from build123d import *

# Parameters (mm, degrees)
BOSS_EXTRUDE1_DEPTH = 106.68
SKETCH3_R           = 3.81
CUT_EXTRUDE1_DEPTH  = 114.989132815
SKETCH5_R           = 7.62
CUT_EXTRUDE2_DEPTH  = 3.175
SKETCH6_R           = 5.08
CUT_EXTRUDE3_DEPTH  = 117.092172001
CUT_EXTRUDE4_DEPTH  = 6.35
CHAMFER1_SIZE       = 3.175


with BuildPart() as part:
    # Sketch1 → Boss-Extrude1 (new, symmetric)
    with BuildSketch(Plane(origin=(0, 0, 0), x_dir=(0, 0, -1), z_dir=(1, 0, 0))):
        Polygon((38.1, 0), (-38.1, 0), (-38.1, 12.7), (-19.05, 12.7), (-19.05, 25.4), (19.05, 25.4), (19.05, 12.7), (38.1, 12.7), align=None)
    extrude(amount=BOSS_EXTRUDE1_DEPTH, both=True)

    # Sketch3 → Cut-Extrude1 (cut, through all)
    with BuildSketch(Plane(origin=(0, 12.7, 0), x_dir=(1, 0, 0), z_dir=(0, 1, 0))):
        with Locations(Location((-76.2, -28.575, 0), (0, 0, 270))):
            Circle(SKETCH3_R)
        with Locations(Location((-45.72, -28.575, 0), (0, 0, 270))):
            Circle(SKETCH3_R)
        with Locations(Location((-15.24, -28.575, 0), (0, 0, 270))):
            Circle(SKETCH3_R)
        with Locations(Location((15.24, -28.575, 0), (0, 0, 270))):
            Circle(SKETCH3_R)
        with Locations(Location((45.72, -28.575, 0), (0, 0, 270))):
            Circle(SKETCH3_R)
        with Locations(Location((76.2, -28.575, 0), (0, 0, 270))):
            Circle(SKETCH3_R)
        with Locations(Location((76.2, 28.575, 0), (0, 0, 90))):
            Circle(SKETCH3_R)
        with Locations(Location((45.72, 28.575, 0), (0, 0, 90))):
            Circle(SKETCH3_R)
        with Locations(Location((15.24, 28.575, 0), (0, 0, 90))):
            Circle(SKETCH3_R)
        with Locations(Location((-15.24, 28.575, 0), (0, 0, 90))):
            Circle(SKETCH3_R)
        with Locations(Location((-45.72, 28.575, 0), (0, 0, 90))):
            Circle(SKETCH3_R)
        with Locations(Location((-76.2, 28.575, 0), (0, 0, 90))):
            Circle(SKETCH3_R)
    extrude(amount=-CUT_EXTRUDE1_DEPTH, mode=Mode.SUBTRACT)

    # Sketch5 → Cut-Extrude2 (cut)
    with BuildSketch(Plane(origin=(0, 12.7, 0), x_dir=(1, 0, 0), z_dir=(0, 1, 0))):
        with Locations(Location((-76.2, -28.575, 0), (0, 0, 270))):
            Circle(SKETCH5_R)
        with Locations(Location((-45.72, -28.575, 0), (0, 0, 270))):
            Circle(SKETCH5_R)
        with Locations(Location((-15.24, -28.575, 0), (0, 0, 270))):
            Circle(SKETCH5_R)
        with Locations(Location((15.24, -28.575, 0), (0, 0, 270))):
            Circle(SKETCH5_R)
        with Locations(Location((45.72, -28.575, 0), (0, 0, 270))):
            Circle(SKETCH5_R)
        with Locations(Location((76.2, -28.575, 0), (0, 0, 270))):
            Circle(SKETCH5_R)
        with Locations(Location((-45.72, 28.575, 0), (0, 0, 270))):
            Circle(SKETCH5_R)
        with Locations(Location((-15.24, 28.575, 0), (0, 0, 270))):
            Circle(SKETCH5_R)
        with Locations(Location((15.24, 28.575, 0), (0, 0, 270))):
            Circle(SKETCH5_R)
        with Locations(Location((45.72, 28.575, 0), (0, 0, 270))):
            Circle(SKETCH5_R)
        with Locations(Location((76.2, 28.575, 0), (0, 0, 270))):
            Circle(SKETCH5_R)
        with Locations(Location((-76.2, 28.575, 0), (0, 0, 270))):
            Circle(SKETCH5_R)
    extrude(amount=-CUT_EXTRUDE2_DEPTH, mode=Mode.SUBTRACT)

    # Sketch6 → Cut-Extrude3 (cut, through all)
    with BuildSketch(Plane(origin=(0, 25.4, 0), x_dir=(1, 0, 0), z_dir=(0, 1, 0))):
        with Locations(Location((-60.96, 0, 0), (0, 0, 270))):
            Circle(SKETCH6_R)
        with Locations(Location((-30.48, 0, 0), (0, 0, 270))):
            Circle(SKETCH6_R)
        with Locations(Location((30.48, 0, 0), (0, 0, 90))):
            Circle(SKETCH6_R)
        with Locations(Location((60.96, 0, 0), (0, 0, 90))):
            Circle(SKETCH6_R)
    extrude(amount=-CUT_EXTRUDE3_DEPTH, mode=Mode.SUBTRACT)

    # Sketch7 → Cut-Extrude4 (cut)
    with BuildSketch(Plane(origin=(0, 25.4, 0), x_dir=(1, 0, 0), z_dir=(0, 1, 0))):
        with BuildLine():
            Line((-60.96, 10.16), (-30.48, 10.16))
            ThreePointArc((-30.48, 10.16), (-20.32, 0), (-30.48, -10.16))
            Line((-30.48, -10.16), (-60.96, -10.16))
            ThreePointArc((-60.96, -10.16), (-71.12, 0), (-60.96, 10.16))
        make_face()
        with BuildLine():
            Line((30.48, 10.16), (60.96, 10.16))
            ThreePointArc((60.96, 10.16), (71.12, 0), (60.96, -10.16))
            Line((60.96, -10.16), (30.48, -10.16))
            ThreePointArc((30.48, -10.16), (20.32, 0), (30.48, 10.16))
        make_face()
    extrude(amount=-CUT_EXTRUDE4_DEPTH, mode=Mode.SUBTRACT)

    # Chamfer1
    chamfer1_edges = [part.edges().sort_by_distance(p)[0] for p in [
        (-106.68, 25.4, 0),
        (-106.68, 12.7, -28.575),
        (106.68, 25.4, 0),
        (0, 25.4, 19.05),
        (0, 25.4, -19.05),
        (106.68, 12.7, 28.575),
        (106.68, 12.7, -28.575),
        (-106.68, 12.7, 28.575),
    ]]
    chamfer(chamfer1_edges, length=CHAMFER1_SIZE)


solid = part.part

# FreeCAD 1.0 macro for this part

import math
import FreeCAD as App
import Part
import Sketcher
Q = App.Units.Quantity


def edges_at(feature, points):
    """Names of the edges that pass closest to the given points."""
    edges = feature.Shape.Edges
    near = lambda p: min(range(len(edges)), key=lambda i: edges[i].distToShape(Part.Vertex(*p))[0])
    return sorted({f"Edge{near(p) + 1}" for p in points})


def add_polygon(sketch, points):
    """Adds a closed chain of lines whose ends are joined by coincident constraints."""
    first, n = sketch.GeometryCount, len(points)
    for a, b in zip(points, points[1:] + points[:1]):
        sketch.addGeometry(Part.LineSegment(App.Vector(*a, 0), App.Vector(*b, 0)), False)
    for i in range(n):
        sketch.addConstraint(Sketcher.Constraint("Coincident", first + i, 2, first + (i + 1) % n, 1))

doc = App.newDocument("Part")
params = doc.addObject("Spreadsheet::Sheet", "Params")
for row, (alias, value) in enumerate([
    ("sketch1_height", "3 in"),
    ("sketch1_width", "0.5 in"),
    ("sketch1_height2", "1.5 in"),
    ("pad1_length", "8.4 in"),
    ("sketch2_diameter", "0.3 in"),
    ("sketch3_diameter", "0.6 in"),
    ("pocket2_length", "0.125 in"),
    ("sketch4_diameter", "0.4 in"),
    ("sketch5_radius", "0.4 in"),
    ("sketch5_width", "1.2 in"),
    ("pocket4_length", "0.25 in"),
    ("chamfer_size", "0.125 in"),
], start=1):
    params.set(f"A{row}", alias)
    params.set(f"B{row}", "=" + value)
    params.setAlias(f"B{row}", alias)

body = doc.addObject("PartDesign::Body", "Body")

sketch1 = doc.addObject("Sketcher::SketchObject", "Sketch")
body.addObject(sketch1)
sketch1.AttachmentSupport = (doc.YZ_Plane, [""])
sketch1.MapMode = "FlatFace"
add_polygon(sketch1, [(0, 38.1), (0, -38.1), (12.7, -38.1), (12.7, -19.05), (25.4, -19.05), (25.4, 19.05), (12.7, 19.05), (12.7, 38.1)])
sketch1.addConstraint([
    Sketcher.Constraint("Vertical", 0),
    Sketcher.Constraint("Horizontal", 1),
    Sketcher.Constraint("Vertical", 2),
    Sketcher.Constraint("Horizontal", 3),
    Sketcher.Constraint("Vertical", 4),
    Sketcher.Constraint("Horizontal", 5),
    Sketcher.Constraint("Vertical", 6),
    Sketcher.Constraint("Horizontal", 7),
    Sketcher.Constraint("Symmetric", 0, 2, 7, 2, -1, 1),
    Sketcher.Constraint("Symmetric", 2, 2, 5, 2, -1),
    Sketcher.Constraint("Equal", 1, 3),
    Sketcher.Constraint("DistanceY", 0, 2, 0, 1, Q("3 in")),
    Sketcher.Constraint("DistanceX", 1, 1, 1, 2, Q("0.5 in")),
    Sketcher.Constraint("DistanceY", 4, 1, 4, 2, Q("1.5 in")),
])
sketch1.setExpression("Constraints[19]", "Params.sketch1_height")
sketch1.setExpression("Constraints[20]", "Params.sketch1_width")
sketch1.setExpression("Constraints[21]", "Params.sketch1_height2")
pad1 = doc.addObject("PartDesign::Pad", "Pad")
body.addObject(pad1)
pad1.Profile = sketch1
pad1.setExpression("Length", "Params.pad1_length")
pad1.Midplane = True

sketch2 = doc.addObject("Sketcher::SketchObject", "Sketch001")
body.addObject(sketch2)
sketch2.AttachmentSupport = (doc.XZ_Plane, [""])
sketch2.MapMode = "FlatFace"
sketch2.AttachmentOffset = App.Placement(App.Vector(0, 0, -0.5 * 25.4), App.Rotation())
sketch2.addGeometry([
    Part.Circle(App.Vector(-76.2, 28.575, 0), App.Vector(0, 0, 1), 3.81),
    Part.Circle(App.Vector(-45.72, 28.575, 0), App.Vector(0, 0, 1), 3.81),
    Part.Circle(App.Vector(-15.24, 28.575, 0), App.Vector(0, 0, 1), 3.81),
    Part.Circle(App.Vector(15.24, 28.575, 0), App.Vector(0, 0, 1), 3.81),
    Part.Circle(App.Vector(45.72, 28.575, 0), App.Vector(0, 0, 1), 3.81),
    Part.Circle(App.Vector(76.2, 28.575, 0), App.Vector(0, 0, 1), 3.81),
    Part.Circle(App.Vector(76.2, -28.575, 0), App.Vector(0, 0, 1), 3.81),
    Part.Circle(App.Vector(45.72, -28.575, 0), App.Vector(0, 0, 1), 3.81),
    Part.Circle(App.Vector(15.24, -28.575, 0), App.Vector(0, 0, 1), 3.81),
    Part.Circle(App.Vector(-15.24, -28.575, 0), App.Vector(0, 0, 1), 3.81),
    Part.Circle(App.Vector(-45.72, -28.575, 0), App.Vector(0, 0, 1), 3.81),
    Part.Circle(App.Vector(-76.2, -28.575, 0), App.Vector(0, 0, 1), 3.81),
], False)
sketch2.addConstraint([
    Sketcher.Constraint("Equal", 0, 1),
    Sketcher.Constraint("Equal", 1, 2),
    Sketcher.Constraint("Equal", 2, 3),
    Sketcher.Constraint("Equal", 3, 4),
    Sketcher.Constraint("Equal", 4, 5),
    Sketcher.Constraint("Equal", 5, 6),
    Sketcher.Constraint("Equal", 6, 7),
    Sketcher.Constraint("Equal", 7, 8),
    Sketcher.Constraint("Equal", 8, 9),
    Sketcher.Constraint("Equal", 9, 10),
    Sketcher.Constraint("Equal", 10, 11),
    Sketcher.Constraint("Symmetric", 0, 3, 6, 3, -1, 1),
    Sketcher.Constraint("Symmetric", 1, 3, 7, 3, -1, 1),
    Sketcher.Constraint("Symmetric", 2, 3, 8, 3, -1, 1),
    Sketcher.Constraint("Symmetric", 3, 3, 9, 3, -1, 1),
    Sketcher.Constraint("Symmetric", 4, 3, 10, 3, -1, 1),
    Sketcher.Constraint("Symmetric", 5, 3, 11, 3, -1, 1),
    Sketcher.Constraint("Symmetric", 2, 3, 3, 3, -2),
    Sketcher.Constraint("Symmetric", 1, 3, 4, 3, -2),
    Sketcher.Constraint("Symmetric", 0, 3, 5, 3, -2),
    Sketcher.Constraint("Horizontal", 0, 3, 1, 3),
    Sketcher.Constraint("Horizontal", 1, 3, 2, 3),
    Sketcher.Constraint("Diameter", 0, Q("0.3 in")),
    Sketcher.Constraint("DistanceX", 0, 3, -1, 1, Q("3 in")),
    Sketcher.Constraint("DistanceX", 1, 3, -1, 1, Q("1.8 in")),
    Sketcher.Constraint("DistanceX", 2, 3, -1, 1, Q("0.6 in")),
    Sketcher.Constraint("DistanceY", 6, 3, 5, 3, Q("2.25 in")),
])
sketch2.setExpression("Constraints[22]", "Params.sketch2_diameter")
pocket1 = doc.addObject("PartDesign::Pocket", "Pocket")
body.addObject(pocket1)
pocket1.Profile = sketch2
pocket1.Type = "ThroughAll"
pocket1.Reversed = True

sketch3 = doc.addObject("Sketcher::SketchObject", "Sketch002")
body.addObject(sketch3)
sketch3.AttachmentSupport = (doc.XZ_Plane, [""])
sketch3.MapMode = "FlatFace"
sketch3.AttachmentOffset = App.Placement(App.Vector(0, 0, -0.5 * 25.4), App.Rotation())
sketch3.addGeometry([
    Part.Circle(App.Vector(-76.2, 28.575, 0), App.Vector(0, 0, 1), 7.62),
    Part.Circle(App.Vector(-45.72, 28.575, 0), App.Vector(0, 0, 1), 7.62),
    Part.Circle(App.Vector(-15.24, 28.575, 0), App.Vector(0, 0, 1), 7.62),
    Part.Circle(App.Vector(15.24, 28.575, 0), App.Vector(0, 0, 1), 7.62),
    Part.Circle(App.Vector(45.72, 28.575, 0), App.Vector(0, 0, 1), 7.62),
    Part.Circle(App.Vector(76.2, 28.575, 0), App.Vector(0, 0, 1), 7.62),
    Part.Circle(App.Vector(-45.72, -28.575, 0), App.Vector(0, 0, 1), 7.62),
    Part.Circle(App.Vector(-15.24, -28.575, 0), App.Vector(0, 0, 1), 7.62),
    Part.Circle(App.Vector(15.24, -28.575, 0), App.Vector(0, 0, 1), 7.62),
    Part.Circle(App.Vector(45.72, -28.575, 0), App.Vector(0, 0, 1), 7.62),
    Part.Circle(App.Vector(76.2, -28.575, 0), App.Vector(0, 0, 1), 7.62),
    Part.Circle(App.Vector(-76.2, -28.575, 0), App.Vector(0, 0, 1), 7.62),
], False)
sketch3.addConstraint([
    Sketcher.Constraint("Equal", 0, 1),
    Sketcher.Constraint("Equal", 1, 2),
    Sketcher.Constraint("Equal", 2, 3),
    Sketcher.Constraint("Equal", 3, 4),
    Sketcher.Constraint("Equal", 4, 5),
    Sketcher.Constraint("Equal", 5, 6),
    Sketcher.Constraint("Equal", 6, 7),
    Sketcher.Constraint("Equal", 7, 8),
    Sketcher.Constraint("Equal", 8, 9),
    Sketcher.Constraint("Equal", 9, 10),
    Sketcher.Constraint("Equal", 10, 11),
    Sketcher.Constraint("Symmetric", 4, 3, 6, 3, -1, 1),
    Sketcher.Constraint("Symmetric", 3, 3, 7, 3, -1, 1),
    Sketcher.Constraint("Symmetric", 2, 3, 8, 3, -1, 1),
    Sketcher.Constraint("Symmetric", 1, 3, 9, 3, -1, 1),
    Sketcher.Constraint("Symmetric", 0, 3, 10, 3, -1, 1),
    Sketcher.Constraint("Symmetric", 5, 3, 11, 3, -1, 1),
    Sketcher.Constraint("Symmetric", 2, 3, 3, 3, -2),
    Sketcher.Constraint("Symmetric", 1, 3, 4, 3, -2),
    Sketcher.Constraint("Symmetric", 0, 3, 5, 3, -2),
    Sketcher.Constraint("Horizontal", 0, 3, 1, 3),
    Sketcher.Constraint("Horizontal", 1, 3, 2, 3),
    Sketcher.Constraint("Diameter", 0, Q("0.6 in")),
    Sketcher.Constraint("DistanceX", 0, 3, -1, 1, Q("3 in")),
    Sketcher.Constraint("DistanceX", 1, 3, -1, 1, Q("1.8 in")),
    Sketcher.Constraint("DistanceX", 2, 3, -1, 1, Q("0.6 in")),
    Sketcher.Constraint("DistanceY", 6, 3, 1, 3, Q("2.25 in")),
])
sketch3.setExpression("Constraints[22]", "Params.sketch3_diameter")
pocket2 = doc.addObject("PartDesign::Pocket", "Pocket001")
body.addObject(pocket2)
pocket2.Profile = sketch3
pocket2.setExpression("Length", "Params.pocket2_length")
pocket2.Reversed = True

sketch4 = doc.addObject("Sketcher::SketchObject", "Sketch003")
body.addObject(sketch4)
sketch4.AttachmentSupport = (doc.XZ_Plane, [""])
sketch4.MapMode = "FlatFace"
sketch4.AttachmentOffset = App.Placement(App.Vector(0, 0, -1 * 25.4), App.Rotation())
sketch4.addGeometry([
    Part.Circle(App.Vector(-60.96, 0, 0), App.Vector(0, 0, 1), 5.08),
    Part.Circle(App.Vector(-30.48, 0, 0), App.Vector(0, 0, 1), 5.08),
    Part.Circle(App.Vector(30.48, 0, 0), App.Vector(0, 0, 1), 5.08),
    Part.Circle(App.Vector(60.96, 0, 0), App.Vector(0, 0, 1), 5.08),
], False)
sketch4.addConstraint([
    Sketcher.Constraint("Equal", 0, 1),
    Sketcher.Constraint("Equal", 1, 2),
    Sketcher.Constraint("Equal", 2, 3),
    Sketcher.Constraint("Symmetric", 1, 3, 2, 3, -1, 1),
    Sketcher.Constraint("Symmetric", 0, 3, 3, 3, -1, 1),
    Sketcher.Constraint("PointOnObject", 0, 3, -1),
    Sketcher.Constraint("PointOnObject", 1, 3, -1),
    Sketcher.Constraint("Diameter", 0, Q("0.4 in")),
    Sketcher.Constraint("DistanceX", 0, 3, -1, 1, Q("2.4 in")),
    Sketcher.Constraint("DistanceX", 1, 3, -1, 1, Q("1.2 in")),
])
sketch4.setExpression("Constraints[7]", "Params.sketch4_diameter")
pocket3 = doc.addObject("PartDesign::Pocket", "Pocket002")
body.addObject(pocket3)
pocket3.Profile = sketch4
pocket3.Type = "ThroughAll"
pocket3.Reversed = True

sketch5 = doc.addObject("Sketcher::SketchObject", "Sketch004")
body.addObject(sketch5)
sketch5.AttachmentSupport = (doc.XZ_Plane, [""])
sketch5.MapMode = "FlatFace"
sketch5.AttachmentOffset = App.Placement(App.Vector(0, 0, -1 * 25.4), App.Rotation())
sketch5.addGeometry([
    Part.LineSegment(App.Vector(-30.48, -10.16, 0), App.Vector(-60.96, -10.16, 0)),
    Part.ArcOfCircle(Part.Circle(App.Vector(-60.96, 0, 0), App.Vector(0, 0, 1), 10.16), math.radians(90), math.radians(270)),
    Part.LineSegment(App.Vector(-60.96, 10.16, 0), App.Vector(-30.48, 10.16, 0)),
    Part.ArcOfCircle(Part.Circle(App.Vector(-30.48, 0, 0), App.Vector(0, 0, 1), 10.16), math.radians(-90), math.radians(90)),
    Part.LineSegment(App.Vector(60.96, -10.16, 0), App.Vector(30.48, -10.16, 0)),
    Part.ArcOfCircle(Part.Circle(App.Vector(30.48, 0, 0), App.Vector(0, 0, 1), 10.16), math.radians(90), math.radians(270)),
    Part.LineSegment(App.Vector(30.48, 10.16, 0), App.Vector(60.96, 10.16, 0)),
    Part.ArcOfCircle(Part.Circle(App.Vector(60.96, 0, 0), App.Vector(0, 0, 1), 10.16), math.radians(-90), math.radians(90)),
], False)
sketch5.addConstraint([
    Sketcher.Constraint("Tangent", 0, 2, 1, 2),
    Sketcher.Constraint("Tangent", 1, 1, 2, 1),
    Sketcher.Constraint("Tangent", 2, 2, 3, 2),
    Sketcher.Constraint("Tangent", 3, 1, 0, 1),
    Sketcher.Constraint("Tangent", 4, 2, 5, 2),
    Sketcher.Constraint("Tangent", 5, 1, 6, 1),
    Sketcher.Constraint("Tangent", 6, 2, 7, 2),
    Sketcher.Constraint("Tangent", 7, 1, 4, 1),
    Sketcher.Constraint("Horizontal", 0),
    Sketcher.Constraint("Horizontal", 2),
    Sketcher.Constraint("Horizontal", 4),
    Sketcher.Constraint("Horizontal", 6),
    Sketcher.Constraint("Equal", 3, 5),
    Sketcher.Constraint("Symmetric", 3, 3, 5, 3, -1, 1),
    Sketcher.Constraint("Symmetric", 1, 3, 7, 3, -2),
    Sketcher.Constraint("Radius", 1, Q("0.4 in")),
    Sketcher.Constraint("DistanceX", 0, 2, 0, 1, Q("1.2 in")),
    Sketcher.Constraint("DistanceX", 1, 3, -1, 1, Q("2.4 in")),
])
sketch5.setExpression("Constraints[15]", "Params.sketch5_radius")
sketch5.setExpression("Constraints[16]", "Params.sketch5_width")
pocket4 = doc.addObject("PartDesign::Pocket", "Pocket003")
body.addObject(pocket4)
pocket4.Profile = sketch5
pocket4.setExpression("Length", "Params.pocket4_length")
pocket4.Reversed = True
doc.recompute()

chamfer = doc.addObject("PartDesign::Chamfer", "Chamfer")
body.addObject(chamfer)
chamfer.Base = (pocket4, edges_at(pocket4, [
    (-106.68, 25.4, 0),
    (-106.68, 12.7, -28.575),
    (106.68, 25.4, 0),
    (0, 25.4, 19.05),
    (0, 25.4, -19.05),
    (106.68, 12.7, 28.575),
    (106.68, 12.7, -28.575),
    (-106.68, 12.7, 28.575),
]))
chamfer.setExpression("Size", "Params.chamfer_size")

doc.recompute()
